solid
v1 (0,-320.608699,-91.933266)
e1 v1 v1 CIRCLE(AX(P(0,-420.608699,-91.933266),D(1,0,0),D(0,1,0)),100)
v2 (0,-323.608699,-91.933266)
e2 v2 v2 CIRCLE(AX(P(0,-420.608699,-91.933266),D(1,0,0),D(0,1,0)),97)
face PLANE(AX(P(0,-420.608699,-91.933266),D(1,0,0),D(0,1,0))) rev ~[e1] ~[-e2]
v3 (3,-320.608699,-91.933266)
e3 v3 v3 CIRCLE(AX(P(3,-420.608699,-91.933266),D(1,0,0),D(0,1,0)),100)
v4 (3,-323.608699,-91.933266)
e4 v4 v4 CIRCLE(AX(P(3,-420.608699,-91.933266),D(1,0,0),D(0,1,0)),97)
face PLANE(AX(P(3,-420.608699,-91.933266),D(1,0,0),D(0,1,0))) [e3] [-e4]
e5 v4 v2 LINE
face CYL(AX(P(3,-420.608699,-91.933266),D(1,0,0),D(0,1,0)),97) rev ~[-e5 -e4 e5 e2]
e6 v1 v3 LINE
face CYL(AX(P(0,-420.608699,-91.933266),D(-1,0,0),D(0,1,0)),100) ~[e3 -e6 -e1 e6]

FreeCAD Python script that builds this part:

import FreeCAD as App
import Part
import Sketcher
from FreeCAD import Vector

doc = App.newDocument("Part")
body = doc.addObject("PartDesign::Body", "Body")

# Sketch on YZ plane
sketch1 = body.newObject("Sketcher::SketchObject", "Sketch")
sketch1.AttachmentSupport = (doc.getObject("YZ_Plane"), [""])
sketch1.MapMode = "FlatFace"
sketch1.addGeometry(Part.Circle(Vector(-421, -92, 0), Vector(0, 0, 1), 100), False)
sketch1.addConstraint([
    Sketcher.Constraint("Diameter", 0, 200.0),
    Sketcher.Constraint("DistanceX", 0, 3, -1, 1, 420.608699),
    Sketcher.Constraint("DistanceY", 0, 3, -1, 1, 91.933266),
])
pad1 = body.newObject("PartDesign::Pad", "Pad")
pad1.Profile = sketch1
pad1.Length = 3

# Sketch on YZ plane
sketch2 = body.newObject("Sketcher::SketchObject", "Sketch001")
sketch2.AttachmentSupport = (doc.getObject("YZ_Plane"), [""])
sketch2.MapMode = "FlatFace"
sketch2.AttachmentOffset = App.Placement(Vector(0, 0, 3), App.Rotation())
sketch2.addGeometry(Part.Circle(Vector(-421, -92, 0), Vector(0, 0, 1), 97), False)
sketch2.addConstraint([
    Sketcher.Constraint("Diameter", 0, 194.0),
    Sketcher.Constraint("DistanceX", 0, 3, -1, 1, 420.608699),
    Sketcher.Constraint("DistanceY", 0, 3, -1, 1, 91.933266),
])
pocket1 = body.newObject("PartDesign::Pocket", "Pocket")
pocket1.Profile = sketch2
pocket1.Length = 3

doc.recompute()
